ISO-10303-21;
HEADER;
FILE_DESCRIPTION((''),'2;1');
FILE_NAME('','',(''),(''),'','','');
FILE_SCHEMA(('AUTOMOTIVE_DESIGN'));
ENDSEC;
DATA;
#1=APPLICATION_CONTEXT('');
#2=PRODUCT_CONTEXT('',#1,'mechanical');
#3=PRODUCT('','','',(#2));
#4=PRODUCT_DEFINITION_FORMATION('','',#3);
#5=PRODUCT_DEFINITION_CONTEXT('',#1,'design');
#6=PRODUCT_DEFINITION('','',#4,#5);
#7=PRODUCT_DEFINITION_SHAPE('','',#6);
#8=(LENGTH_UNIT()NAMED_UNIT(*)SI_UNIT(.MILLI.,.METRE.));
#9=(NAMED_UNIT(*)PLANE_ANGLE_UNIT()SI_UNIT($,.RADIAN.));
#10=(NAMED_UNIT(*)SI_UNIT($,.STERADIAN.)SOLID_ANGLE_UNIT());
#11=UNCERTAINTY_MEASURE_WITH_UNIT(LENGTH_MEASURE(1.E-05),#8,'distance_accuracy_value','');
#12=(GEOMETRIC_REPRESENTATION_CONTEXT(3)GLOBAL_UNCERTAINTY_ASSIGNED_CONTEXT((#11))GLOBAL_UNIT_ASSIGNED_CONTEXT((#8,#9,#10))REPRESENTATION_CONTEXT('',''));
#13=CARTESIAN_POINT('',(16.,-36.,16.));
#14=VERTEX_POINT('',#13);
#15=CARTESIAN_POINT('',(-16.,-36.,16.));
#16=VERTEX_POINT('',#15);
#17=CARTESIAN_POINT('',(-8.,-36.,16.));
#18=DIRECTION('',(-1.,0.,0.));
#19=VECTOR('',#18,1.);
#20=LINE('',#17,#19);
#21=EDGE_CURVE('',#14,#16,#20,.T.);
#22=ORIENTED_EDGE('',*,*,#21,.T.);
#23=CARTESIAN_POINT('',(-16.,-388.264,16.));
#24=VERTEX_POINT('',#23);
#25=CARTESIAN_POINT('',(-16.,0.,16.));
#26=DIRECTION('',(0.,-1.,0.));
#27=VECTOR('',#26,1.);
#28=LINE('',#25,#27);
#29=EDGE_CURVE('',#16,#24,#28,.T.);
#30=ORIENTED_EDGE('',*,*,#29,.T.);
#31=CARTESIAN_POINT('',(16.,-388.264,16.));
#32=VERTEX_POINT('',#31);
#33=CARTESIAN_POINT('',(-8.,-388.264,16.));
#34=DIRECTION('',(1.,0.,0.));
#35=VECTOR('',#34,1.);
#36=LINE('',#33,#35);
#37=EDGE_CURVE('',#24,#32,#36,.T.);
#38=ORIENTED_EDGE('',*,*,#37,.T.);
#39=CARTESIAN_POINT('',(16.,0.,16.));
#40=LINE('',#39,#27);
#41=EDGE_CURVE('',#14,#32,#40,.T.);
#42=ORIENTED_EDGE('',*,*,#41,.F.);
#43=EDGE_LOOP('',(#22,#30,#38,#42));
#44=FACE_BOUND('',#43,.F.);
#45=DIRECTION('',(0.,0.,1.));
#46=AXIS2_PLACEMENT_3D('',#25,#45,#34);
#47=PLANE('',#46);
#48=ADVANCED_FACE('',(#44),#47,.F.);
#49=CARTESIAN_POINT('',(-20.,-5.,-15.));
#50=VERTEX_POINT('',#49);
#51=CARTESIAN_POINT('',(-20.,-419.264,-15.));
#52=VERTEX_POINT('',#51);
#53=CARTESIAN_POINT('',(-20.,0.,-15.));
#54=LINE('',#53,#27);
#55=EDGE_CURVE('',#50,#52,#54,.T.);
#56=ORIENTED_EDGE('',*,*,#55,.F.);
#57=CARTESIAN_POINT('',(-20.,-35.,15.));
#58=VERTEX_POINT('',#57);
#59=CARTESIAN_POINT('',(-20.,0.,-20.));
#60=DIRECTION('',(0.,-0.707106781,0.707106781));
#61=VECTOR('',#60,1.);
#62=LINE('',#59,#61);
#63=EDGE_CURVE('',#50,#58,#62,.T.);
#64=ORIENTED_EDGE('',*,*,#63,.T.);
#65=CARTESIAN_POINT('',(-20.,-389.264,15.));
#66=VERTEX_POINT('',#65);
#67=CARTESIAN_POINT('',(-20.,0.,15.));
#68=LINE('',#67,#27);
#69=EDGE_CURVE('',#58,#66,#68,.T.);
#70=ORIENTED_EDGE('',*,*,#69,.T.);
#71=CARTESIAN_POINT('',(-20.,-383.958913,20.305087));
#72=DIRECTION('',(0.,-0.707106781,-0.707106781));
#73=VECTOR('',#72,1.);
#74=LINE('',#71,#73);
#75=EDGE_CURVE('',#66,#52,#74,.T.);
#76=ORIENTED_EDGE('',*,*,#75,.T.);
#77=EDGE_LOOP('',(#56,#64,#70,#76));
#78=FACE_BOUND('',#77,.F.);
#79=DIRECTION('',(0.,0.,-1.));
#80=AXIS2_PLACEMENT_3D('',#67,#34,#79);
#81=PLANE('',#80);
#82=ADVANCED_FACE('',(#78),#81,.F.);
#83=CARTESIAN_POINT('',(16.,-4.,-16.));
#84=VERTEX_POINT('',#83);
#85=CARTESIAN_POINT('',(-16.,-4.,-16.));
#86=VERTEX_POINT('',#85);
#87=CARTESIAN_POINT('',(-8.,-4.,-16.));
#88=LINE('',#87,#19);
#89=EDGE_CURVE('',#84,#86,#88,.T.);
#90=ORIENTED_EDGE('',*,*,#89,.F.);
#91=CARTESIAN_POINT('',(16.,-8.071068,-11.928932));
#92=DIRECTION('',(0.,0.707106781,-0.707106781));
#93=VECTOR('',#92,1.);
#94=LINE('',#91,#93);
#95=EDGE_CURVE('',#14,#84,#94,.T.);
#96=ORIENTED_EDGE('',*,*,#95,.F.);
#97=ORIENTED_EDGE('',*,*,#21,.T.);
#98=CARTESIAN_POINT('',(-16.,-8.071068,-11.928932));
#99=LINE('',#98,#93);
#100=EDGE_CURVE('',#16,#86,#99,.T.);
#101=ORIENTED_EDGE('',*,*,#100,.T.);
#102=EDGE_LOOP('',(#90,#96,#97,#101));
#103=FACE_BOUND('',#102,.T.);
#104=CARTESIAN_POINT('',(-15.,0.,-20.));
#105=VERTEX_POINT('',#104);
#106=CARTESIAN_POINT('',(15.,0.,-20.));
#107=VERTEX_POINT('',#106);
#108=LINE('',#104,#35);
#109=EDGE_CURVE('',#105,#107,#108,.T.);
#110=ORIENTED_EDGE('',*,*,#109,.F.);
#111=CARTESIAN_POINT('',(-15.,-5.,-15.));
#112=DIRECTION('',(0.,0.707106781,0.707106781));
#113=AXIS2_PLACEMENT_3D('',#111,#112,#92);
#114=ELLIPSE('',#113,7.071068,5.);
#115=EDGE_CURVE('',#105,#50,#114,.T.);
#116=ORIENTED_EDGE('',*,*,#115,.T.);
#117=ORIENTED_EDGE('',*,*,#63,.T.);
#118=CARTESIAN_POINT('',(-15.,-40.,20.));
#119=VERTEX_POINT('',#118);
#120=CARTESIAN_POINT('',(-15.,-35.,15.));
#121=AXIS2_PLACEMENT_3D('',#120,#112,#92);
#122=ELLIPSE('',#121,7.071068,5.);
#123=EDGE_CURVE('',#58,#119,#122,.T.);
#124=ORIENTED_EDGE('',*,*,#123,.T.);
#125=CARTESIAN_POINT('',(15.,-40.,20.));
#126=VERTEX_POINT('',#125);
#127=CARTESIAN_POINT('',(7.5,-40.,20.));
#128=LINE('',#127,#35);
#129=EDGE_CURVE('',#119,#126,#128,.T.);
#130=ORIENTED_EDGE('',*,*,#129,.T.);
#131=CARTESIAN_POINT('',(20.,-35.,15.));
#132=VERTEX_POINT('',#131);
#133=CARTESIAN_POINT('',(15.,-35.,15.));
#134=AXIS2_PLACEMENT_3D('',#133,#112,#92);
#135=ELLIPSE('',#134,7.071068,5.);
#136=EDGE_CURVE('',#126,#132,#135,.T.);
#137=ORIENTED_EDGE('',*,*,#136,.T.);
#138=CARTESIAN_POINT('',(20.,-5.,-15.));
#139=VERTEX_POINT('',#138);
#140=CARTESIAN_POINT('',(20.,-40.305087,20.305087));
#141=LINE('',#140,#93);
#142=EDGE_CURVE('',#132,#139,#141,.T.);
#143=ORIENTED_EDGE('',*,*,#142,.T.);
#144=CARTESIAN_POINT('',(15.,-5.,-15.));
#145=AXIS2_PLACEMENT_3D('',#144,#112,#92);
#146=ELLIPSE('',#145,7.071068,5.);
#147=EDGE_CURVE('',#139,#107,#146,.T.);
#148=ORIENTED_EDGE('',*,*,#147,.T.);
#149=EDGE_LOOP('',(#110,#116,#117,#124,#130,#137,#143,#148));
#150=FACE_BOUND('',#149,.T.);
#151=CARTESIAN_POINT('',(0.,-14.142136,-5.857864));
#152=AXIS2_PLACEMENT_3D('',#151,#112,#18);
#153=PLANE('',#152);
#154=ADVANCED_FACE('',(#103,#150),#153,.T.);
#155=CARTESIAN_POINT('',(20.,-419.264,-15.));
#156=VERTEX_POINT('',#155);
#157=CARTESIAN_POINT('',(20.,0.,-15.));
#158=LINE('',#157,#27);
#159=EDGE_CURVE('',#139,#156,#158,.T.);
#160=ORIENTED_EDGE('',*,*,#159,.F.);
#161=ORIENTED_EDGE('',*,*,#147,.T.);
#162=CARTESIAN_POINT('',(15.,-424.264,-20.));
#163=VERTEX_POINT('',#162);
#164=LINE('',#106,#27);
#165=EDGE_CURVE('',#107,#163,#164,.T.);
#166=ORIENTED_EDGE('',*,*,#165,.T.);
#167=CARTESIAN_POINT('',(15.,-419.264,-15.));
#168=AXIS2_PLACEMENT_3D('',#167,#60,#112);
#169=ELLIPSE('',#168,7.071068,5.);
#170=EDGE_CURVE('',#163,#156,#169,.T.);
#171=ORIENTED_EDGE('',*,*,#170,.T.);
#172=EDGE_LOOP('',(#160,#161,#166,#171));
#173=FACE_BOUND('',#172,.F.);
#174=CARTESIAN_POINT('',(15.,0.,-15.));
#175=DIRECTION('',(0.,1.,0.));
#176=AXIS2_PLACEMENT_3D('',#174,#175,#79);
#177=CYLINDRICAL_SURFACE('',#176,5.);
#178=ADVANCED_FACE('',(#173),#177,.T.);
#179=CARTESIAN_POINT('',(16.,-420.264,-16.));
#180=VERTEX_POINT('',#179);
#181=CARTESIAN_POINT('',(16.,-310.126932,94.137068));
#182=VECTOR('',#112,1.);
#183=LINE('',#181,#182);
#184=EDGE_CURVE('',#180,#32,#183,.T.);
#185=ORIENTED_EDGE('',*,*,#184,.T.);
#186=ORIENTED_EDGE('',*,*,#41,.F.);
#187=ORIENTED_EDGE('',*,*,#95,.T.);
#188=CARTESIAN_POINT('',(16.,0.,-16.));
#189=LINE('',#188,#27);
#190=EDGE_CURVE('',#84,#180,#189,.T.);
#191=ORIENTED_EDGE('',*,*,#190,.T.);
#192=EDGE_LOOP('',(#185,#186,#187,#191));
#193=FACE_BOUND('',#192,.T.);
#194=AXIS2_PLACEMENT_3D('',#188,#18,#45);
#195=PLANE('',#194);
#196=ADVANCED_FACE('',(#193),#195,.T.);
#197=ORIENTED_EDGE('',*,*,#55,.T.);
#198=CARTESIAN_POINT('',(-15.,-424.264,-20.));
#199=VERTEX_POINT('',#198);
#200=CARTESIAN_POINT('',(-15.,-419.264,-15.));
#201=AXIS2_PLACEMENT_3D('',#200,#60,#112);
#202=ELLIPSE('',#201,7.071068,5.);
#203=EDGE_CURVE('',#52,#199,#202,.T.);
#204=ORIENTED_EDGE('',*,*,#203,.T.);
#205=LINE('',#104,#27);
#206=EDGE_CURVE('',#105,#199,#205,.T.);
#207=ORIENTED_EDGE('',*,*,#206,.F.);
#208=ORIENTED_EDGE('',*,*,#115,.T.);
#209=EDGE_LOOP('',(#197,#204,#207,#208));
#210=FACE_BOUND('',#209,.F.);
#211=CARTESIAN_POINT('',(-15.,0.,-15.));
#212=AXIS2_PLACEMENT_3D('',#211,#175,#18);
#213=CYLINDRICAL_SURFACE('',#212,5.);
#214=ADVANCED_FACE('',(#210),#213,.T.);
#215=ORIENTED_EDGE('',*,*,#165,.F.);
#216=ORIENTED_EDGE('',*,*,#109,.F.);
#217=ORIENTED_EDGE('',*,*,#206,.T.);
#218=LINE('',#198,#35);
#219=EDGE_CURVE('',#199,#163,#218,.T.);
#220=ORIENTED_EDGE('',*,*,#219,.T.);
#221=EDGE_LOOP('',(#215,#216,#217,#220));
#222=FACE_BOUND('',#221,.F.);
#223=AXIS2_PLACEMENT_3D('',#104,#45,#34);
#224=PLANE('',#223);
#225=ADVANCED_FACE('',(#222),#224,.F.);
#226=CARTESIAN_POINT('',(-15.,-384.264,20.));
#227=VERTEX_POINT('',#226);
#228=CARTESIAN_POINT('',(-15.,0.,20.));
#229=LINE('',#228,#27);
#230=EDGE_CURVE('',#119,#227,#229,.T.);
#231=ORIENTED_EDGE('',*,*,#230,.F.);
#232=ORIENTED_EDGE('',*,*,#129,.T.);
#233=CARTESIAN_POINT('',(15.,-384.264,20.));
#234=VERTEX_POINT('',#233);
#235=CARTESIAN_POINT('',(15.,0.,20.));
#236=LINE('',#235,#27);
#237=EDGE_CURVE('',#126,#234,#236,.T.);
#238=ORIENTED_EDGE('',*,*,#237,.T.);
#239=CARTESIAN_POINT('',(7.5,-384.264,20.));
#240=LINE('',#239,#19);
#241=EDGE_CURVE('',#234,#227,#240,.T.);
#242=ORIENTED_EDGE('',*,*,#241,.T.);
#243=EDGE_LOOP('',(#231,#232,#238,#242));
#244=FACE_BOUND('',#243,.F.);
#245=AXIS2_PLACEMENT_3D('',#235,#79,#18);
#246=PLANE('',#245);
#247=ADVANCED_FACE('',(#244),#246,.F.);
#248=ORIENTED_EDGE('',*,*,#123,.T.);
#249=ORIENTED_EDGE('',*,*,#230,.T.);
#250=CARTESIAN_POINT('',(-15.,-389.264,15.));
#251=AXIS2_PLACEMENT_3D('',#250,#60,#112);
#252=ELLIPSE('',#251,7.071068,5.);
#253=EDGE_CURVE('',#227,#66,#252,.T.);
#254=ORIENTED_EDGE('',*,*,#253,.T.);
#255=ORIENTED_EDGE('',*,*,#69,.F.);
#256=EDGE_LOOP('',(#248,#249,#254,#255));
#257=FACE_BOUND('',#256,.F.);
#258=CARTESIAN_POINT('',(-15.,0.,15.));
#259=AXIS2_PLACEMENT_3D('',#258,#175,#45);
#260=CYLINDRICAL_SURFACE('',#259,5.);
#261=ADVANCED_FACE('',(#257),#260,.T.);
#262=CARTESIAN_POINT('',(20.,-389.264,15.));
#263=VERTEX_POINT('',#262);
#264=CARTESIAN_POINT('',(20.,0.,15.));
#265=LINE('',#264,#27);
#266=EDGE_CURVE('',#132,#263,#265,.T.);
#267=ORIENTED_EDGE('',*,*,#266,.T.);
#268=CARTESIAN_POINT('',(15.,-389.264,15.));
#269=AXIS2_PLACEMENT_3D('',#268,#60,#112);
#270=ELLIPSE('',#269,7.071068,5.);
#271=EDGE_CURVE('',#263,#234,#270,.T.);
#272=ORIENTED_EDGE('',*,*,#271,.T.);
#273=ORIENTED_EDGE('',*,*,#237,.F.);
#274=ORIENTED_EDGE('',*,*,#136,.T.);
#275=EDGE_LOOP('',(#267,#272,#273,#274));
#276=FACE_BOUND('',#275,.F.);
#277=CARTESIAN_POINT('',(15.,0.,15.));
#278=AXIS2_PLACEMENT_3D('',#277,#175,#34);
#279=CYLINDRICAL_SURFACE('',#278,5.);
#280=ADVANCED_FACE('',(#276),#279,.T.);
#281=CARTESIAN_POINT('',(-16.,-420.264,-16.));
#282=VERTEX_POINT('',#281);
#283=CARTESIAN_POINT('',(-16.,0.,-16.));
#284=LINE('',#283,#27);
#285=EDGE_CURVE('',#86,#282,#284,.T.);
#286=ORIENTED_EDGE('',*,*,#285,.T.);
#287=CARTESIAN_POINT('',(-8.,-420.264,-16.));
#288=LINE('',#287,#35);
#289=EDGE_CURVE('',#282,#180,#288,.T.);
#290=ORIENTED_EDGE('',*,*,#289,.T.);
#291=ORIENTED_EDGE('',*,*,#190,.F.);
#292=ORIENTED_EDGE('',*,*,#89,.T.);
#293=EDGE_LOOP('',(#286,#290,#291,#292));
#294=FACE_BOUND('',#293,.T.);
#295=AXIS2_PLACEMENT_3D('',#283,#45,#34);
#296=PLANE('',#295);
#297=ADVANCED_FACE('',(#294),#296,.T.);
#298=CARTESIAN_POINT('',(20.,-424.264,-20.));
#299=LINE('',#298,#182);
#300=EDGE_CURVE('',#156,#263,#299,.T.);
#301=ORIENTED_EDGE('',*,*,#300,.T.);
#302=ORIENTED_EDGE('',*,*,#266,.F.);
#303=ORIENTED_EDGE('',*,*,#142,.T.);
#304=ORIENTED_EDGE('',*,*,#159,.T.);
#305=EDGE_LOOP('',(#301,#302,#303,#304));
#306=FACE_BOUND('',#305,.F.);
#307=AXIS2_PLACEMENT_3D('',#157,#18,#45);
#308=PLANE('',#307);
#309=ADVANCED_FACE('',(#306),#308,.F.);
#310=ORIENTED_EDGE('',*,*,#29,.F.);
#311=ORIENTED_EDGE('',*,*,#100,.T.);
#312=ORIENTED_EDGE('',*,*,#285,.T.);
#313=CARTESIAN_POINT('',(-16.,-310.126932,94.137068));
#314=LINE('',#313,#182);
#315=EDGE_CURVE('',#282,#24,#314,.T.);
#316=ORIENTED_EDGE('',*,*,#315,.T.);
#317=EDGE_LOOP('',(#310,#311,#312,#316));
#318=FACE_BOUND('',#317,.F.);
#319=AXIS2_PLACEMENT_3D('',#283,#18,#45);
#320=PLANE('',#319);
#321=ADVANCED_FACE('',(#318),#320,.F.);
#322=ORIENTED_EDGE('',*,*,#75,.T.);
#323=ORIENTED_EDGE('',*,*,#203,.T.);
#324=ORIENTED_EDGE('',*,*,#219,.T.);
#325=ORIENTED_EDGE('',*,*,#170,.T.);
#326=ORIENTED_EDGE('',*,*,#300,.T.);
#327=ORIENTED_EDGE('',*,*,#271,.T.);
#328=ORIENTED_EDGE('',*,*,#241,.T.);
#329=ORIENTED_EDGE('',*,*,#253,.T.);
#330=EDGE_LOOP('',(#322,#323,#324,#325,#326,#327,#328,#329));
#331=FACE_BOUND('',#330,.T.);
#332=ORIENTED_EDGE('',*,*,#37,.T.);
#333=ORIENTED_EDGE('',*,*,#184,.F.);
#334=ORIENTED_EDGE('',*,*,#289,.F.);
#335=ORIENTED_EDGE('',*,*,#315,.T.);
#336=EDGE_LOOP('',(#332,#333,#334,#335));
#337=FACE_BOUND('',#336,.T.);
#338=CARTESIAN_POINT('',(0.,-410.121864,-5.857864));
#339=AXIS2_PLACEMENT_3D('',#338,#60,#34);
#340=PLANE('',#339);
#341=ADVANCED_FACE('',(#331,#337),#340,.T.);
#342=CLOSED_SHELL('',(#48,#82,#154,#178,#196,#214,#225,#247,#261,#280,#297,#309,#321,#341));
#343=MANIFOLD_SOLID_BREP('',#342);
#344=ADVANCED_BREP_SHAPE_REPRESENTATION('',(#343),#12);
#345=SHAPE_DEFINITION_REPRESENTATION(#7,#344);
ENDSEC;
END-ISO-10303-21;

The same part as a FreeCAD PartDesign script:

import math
import FreeCAD as App
import Part
import Sketcher

V = App.Vector

doc = App.newDocument("Part")
body = doc.addObject("PartDesign::Body", "Body")

# Sketch on XZ plane
sketch1 = doc.addObject("Sketcher::SketchObject", "Sketch")
body.addObject(sketch1)
sketch1.AttachmentSupport = (doc.XZ_Plane, [""])
sketch1.MapMode = "FlatFace"
sketch1.addGeometry(Part.LineSegment(V(-15, -20, 0), V(15, -20, 0)), False)
sketch1.addGeometry(Part.ArcOfCircle(Part.Circle(V(15, -15, 0), V(0, 0, 1), 5), math.radians(-90), math.radians(0)), False)
sketch1.addGeometry(Part.LineSegment(V(20, -15, 0), V(20, 15, 0)), False)
sketch1.addGeometry(Part.ArcOfCircle(Part.Circle(V(15, 15, 0), V(0, 0, 1), 5), math.radians(0), math.radians(90)), False)
sketch1.addGeometry(Part.LineSegment(V(15, 20, 0), V(-15, 20, 0)), False)
sketch1.addGeometry(Part.ArcOfCircle(Part.Circle(V(-15, 15, 0), V(0, 0, 1), 5), math.radians(90), math.radians(180)), False)
sketch1.addGeometry(Part.LineSegment(V(-20, 15, 0), V(-20, -15, 0)), False)
sketch1.addGeometry(Part.ArcOfCircle(Part.Circle(V(-15, -15, 0), V(0, 0, 1), 5), math.radians(180), math.radians(270)), False)
sketch1.addGeometry(Part.LineSegment(V(16, -16, 0), V(-16, -16, 0)), False)
sketch1.addGeometry(Part.LineSegment(V(-16, -16, 0), V(-16, 16, 0)), False)
sketch1.addGeometry(Part.LineSegment(V(-16, 16, 0), V(16, 16, 0)), False)
sketch1.addGeometry(Part.LineSegment(V(16, 16, 0), V(16, -16, 0)), False)
sketch1.addConstraint(Sketcher.Constraint("Tangent", 0, 2, 1, 1))
sketch1.addConstraint(Sketcher.Constraint("Tangent", 1, 2, 2, 1))
sketch1.addConstraint(Sketcher.Constraint("Tangent", 2, 2, 3, 1))
sketch1.addConstraint(Sketcher.Constraint("Tangent", 3, 2, 4, 1))
sketch1.addConstraint(Sketcher.Constraint("Tangent", 4, 2, 5, 1))
sketch1.addConstraint(Sketcher.Constraint("Tangent", 5, 2, 6, 1))
sketch1.addConstraint(Sketcher.Constraint("Tangent", 6, 2, 7, 1))
sketch1.addConstraint(Sketcher.Constraint("Tangent", 7, 2, 0, 1))
sketch1.addConstraint(Sketcher.Constraint("Coincident", 8, 2, 9, 1))
sketch1.addConstraint(Sketcher.Constraint("Coincident", 9, 2, 10, 1))
sketch1.addConstraint(Sketcher.Constraint("Coincident", 10, 2, 11, 1))
sketch1.addConstraint(Sketcher.Constraint("Coincident", 11, 2, 8, 1))
sketch1.addConstraint(Sketcher.Constraint("Horizontal", 0))
sketch1.addConstraint(Sketcher.Constraint("Vertical", 2))
sketch1.addConstraint(Sketcher.Constraint("Horizontal", 4))
sketch1.addConstraint(Sketcher.Constraint("Vertical", 6))
sketch1.addConstraint(Sketcher.Constraint("Horizontal", 8))
sketch1.addConstraint(Sketcher.Constraint("Vertical", 9))
sketch1.addConstraint(Sketcher.Constraint("Horizontal", 10))
sketch1.addConstraint(Sketcher.Constraint("Vertical", 11))
sketch1.addConstraint(Sketcher.Constraint("Equal", 1, 3))
sketch1.addConstraint(Sketcher.Constraint("Equal", 3, 5))
sketch1.addConstraint(Sketcher.Constraint("Equal", 5, 7))
sketch1.addConstraint(Sketcher.Constraint("Symmetric", 1, 3, 5, 3, -1, 1))
sketch1.addConstraint(Sketcher.Constraint("Symmetric", 8, 2, 10, 2, -1, 1))
sketch1.addConstraint(Sketcher.Constraint("Equal", 4, 2))
sketch1.addConstraint(Sketcher.Constraint("Equal", 10, 9))
sketch1.addConstraint(Sketcher.Constraint("Radius", 1, 5.0))
sketch1.addConstraint(Sketcher.Constraint("DistanceX", 0, 1, 0, 2, 30.0))
sketch1.addConstraint(Sketcher.Constraint("DistanceX", 8, 2, 8, 1, 32.0))
pad1 = doc.addObject("PartDesign::Pad", "Pad")
body.addObject(pad1)
pad1.Profile = sketch1
pad1.Length = 424.264

# Sketch on XZ plane
sketch2 = doc.addObject("Sketcher::SketchObject", "Sketch001")
body.addObject(sketch2)
sketch2.AttachmentSupport = (doc.XZ_Plane, [""])
sketch2.MapMode = "FlatFace"
sketch2.AttachmentOffset = App.Placement(V(0, 0, 424.264), App.Rotation())
sketch2.addGeometry(Part.LineSegment(V(20, -20, 0), V(20, 37, 0)), False)
sketch2.addGeometry(Part.LineSegment(V(20, 37, 0), V(-20, 37, 0)), False)
sketch2.addGeometry(Part.LineSegment(V(-20, 37, 0), V(-20, -20, 0)), False)
sketch2.addGeometry(Part.LineSegment(V(-20, -20, 0), V(20, -20, 0)), False)
sketch2.addGeometry(Part.LineSegment(V(20, -20, 0), V(-20, -20, 0)), True)  # axis
sketch2.addConstraint(Sketcher.Constraint("Coincident", 0, 2, 1, 1))
sketch2.addConstraint(Sketcher.Constraint("Coincident", 1, 2, 2, 1))
sketch2.addConstraint(Sketcher.Constraint("Coincident", 2, 2, 3, 1))
sketch2.addConstraint(Sketcher.Constraint("Coincident", 3, 2, 0, 1))
sketch2.addConstraint(Sketcher.Constraint("Vertical", 0))
sketch2.addConstraint(Sketcher.Constraint("Horizontal", 1))
sketch2.addConstraint(Sketcher.Constraint("Vertical", 2))
sketch2.addConstraint(Sketcher.Constraint("Horizontal", 3))
sketch2.addConstraint(Sketcher.Constraint("Horizontal", 4))
sketch2.addConstraint(Sketcher.Constraint("Coincident", 4, 1, 3, 2))
sketch2.addConstraint(Sketcher.Constraint("Vertical", 1, 2, 4, 2))
sketch2.addConstraint(Sketcher.Constraint("DistanceX", 1, 2, 1, 1, 40.0))
sketch2.addConstraint(Sketcher.Constraint("DistanceY", 0, 1, 0, 2, 57.0))
sketch2.addConstraint(Sketcher.Constraint("DistanceX", -1, 1, 0, 2, 20.0))
sketch2.addConstraint(Sketcher.Constraint("DistanceY", -1, 1, 0, 2, 37.0))
groove = doc.addObject("PartDesign::Groove", "Groove")
body.addObject(groove)
groove.Profile = sketch2
groove.ReferenceAxis = (sketch2, ["Axis0"])
groove.Angle = 45

# Sketch on XZ plane
sketch3 = doc.addObject("Sketcher::SketchObject", "Sketch002")
body.addObject(sketch3)
sketch3.AttachmentSupport = (doc.XZ_Plane, [""])
sketch3.MapMode = "FlatFace"
sketch3.addGeometry(Part.LineSegment(V(-20, -20, 0), V(-20, 37, 0)), False)
sketch3.addGeometry(Part.LineSegment(V(-20, 37, 0), V(20, 37, 0)), False)
sketch3.addGeometry(Part.LineSegment(V(20, 37, 0), V(20, -20, 0)), False)
sketch3.addGeometry(Part.LineSegment(V(20, -20, 0), V(-20, -20, 0)), False)
sketch3.addGeometry(Part.LineSegment(V(-20, -20, 0), V(20, -20, 0)), True)  # axis
sketch3.addConstraint(Sketcher.Constraint("Coincident", 0, 2, 1, 1))
sketch3.addConstraint(Sketcher.Constraint("Coincident", 1, 2, 2, 1))
sketch3.addConstraint(Sketcher.Constraint("Coincident", 2, 2, 3, 1))
sketch3.addConstraint(Sketcher.Constraint("Coincident", 3, 2, 0, 1))
sketch3.addConstraint(Sketcher.Constraint("Vertical", 0))
sketch3.addConstraint(Sketcher.Constraint("Horizontal", 1))
sketch3.addConstraint(Sketcher.Constraint("Vertical", 2))
sketch3.addConstraint(Sketcher.Constraint("Horizontal", 3))
sketch3.addConstraint(Sketcher.Constraint("Horizontal", 4))
sketch3.addConstraint(Sketcher.Constraint("Coincident", 4, 1, 3, 2))
sketch3.addConstraint(Sketcher.Constraint("Vertical", 1, 2, 4, 2))
sketch3.addConstraint(Sketcher.Constraint("DistanceX", 1, 1, 1, 2, 40.0))
sketch3.addConstraint(Sketcher.Constraint("DistanceY", 0, 1, 0, 2, 57.0))
sketch3.addConstraint(Sketcher.Constraint("DistanceX", 0, 2, -1, 1, 20.0))
sketch3.addConstraint(Sketcher.Constraint("DistanceY", -1, 1, 0, 2, 37.0))
groove2 = doc.addObject("PartDesign::Groove", "Groove001")
body.addObject(groove2)
groove2.Profile = sketch3
groove2.ReferenceAxis = (sketch3, ["Axis0"])
groove2.Angle = 45

doc.recompute()
